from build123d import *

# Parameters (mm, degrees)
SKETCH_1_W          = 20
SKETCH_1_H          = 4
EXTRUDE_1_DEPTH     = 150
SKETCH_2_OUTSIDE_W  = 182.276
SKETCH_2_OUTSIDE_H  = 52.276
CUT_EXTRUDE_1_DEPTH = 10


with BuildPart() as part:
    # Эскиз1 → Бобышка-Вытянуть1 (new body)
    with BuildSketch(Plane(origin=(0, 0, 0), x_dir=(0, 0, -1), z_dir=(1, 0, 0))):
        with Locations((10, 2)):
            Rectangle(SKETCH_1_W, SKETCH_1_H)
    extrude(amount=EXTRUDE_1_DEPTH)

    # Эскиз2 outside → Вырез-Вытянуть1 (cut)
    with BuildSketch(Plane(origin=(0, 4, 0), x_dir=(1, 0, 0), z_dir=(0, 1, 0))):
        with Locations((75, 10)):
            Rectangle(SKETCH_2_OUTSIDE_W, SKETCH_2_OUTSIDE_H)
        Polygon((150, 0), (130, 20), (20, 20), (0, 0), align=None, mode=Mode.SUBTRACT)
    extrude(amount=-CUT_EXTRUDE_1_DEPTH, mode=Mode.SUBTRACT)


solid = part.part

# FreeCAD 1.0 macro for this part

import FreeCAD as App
import Part
import Sketcher
Q = App.Units.Quantity


def add_polygon(sketch, points):
    """Adds a closed chain of lines whose ends are joined by coincident constraints."""
    first, n = sketch.GeometryCount, len(points)
    for a, b in zip(points, points[1:] + points[:1]):
        sketch.addGeometry(Part.LineSegment(App.Vector(*a, 0), App.Vector(*b, 0)), False)
    for i in range(n):
        sketch.addConstraint(Sketcher.Constraint("Coincident", first + i, 2, first + (i + 1) % n, 1))

doc = App.newDocument("Part")
body = doc.addObject("PartDesign::Body", "Body")

# Sketch on YZ plane
sketch1 = doc.addObject("Sketcher::SketchObject", "Sketch")
body.addObject(sketch1)
sketch1.AttachmentSupport = (doc.YZ_Plane, [""])
sketch1.MapMode = "FlatFace"
add_polygon(sketch1, [(4, 0), (0, 0), (0, -20), (4, -20)])  # lines 0-3
sketch1.addConstraint([
    Sketcher.Constraint("Horizontal", 0),
    Sketcher.Constraint("Vertical", 1),
    Sketcher.Constraint("Horizontal", 2),
    Sketcher.Constraint("Vertical", 3),
    Sketcher.Constraint("Coincident", 0, 2, -1, 1),
    Sketcher.Constraint("DistanceX", 0, 2, 0, 1, Q("4 mm")),
    Sketcher.Constraint("DistanceY", 1, 2, 1, 1, Q("20 mm")),
])
pad1 = doc.addObject("PartDesign::Pad", "Pad")
body.addObject(pad1)
pad1.Profile = sketch1
pad1.Length = 150

# Sketch on XZ plane
sketch2 = doc.addObject("Sketcher::SketchObject", "Sketch001")
body.addObject(sketch2)
sketch2.AttachmentSupport = (doc.XZ_Plane, [""])
sketch2.MapMode = "FlatFace"
sketch2.AttachmentOffset = App.Placement(App.Vector(0, 0, -4), App.Rotation())
add_polygon(sketch2, [(-16, -36), (-16, 16), (166, 16), (166, -36)])  # lines 0-3
add_polygon(sketch2, [(130, -20), (150, 0), (0, 0), (20, -20)])  # lines 4-7
sketch2.addConstraint([
    Sketcher.Constraint("Vertical", 0),
    Sketcher.Constraint("Horizontal", 1),
    Sketcher.Constraint("Vertical", 2),
    Sketcher.Constraint("Horizontal", 3),
    Sketcher.Constraint("Horizontal", 5),
    Sketcher.Constraint("Horizontal", 7),
    Sketcher.Constraint("Coincident", 5, 2, -1, 1),
    Sketcher.Constraint("Perpendicular", 4, 6),
    Sketcher.Constraint("Equal", 4, 6),
    Sketcher.Constraint("DistanceX", 5, 2, 5, 1, Q("150 mm")),
    Sketcher.Constraint("DistanceX", 7, 1, 7, 2, Q("110 mm")),
    Sketcher.Constraint("DistanceX", 1, 1, 1, 2, Q("182.276 mm")),
    Sketcher.Constraint("DistanceY", 0, 1, 0, 2, Q("52.276 mm")),
    Sketcher.Constraint("DistanceX", 0, 2, -1, 1, Q("16.138 mm")),
    Sketcher.Constraint("DistanceY", -1, 1, 0, 2, Q("16.138 mm")),
])
pocket1 = doc.addObject("PartDesign::Pocket", "Pocket")
body.addObject(pocket1)
pocket1.Profile = sketch2
pocket1.Length = 10
pocket1.Reversed = True

doc.recompute()
